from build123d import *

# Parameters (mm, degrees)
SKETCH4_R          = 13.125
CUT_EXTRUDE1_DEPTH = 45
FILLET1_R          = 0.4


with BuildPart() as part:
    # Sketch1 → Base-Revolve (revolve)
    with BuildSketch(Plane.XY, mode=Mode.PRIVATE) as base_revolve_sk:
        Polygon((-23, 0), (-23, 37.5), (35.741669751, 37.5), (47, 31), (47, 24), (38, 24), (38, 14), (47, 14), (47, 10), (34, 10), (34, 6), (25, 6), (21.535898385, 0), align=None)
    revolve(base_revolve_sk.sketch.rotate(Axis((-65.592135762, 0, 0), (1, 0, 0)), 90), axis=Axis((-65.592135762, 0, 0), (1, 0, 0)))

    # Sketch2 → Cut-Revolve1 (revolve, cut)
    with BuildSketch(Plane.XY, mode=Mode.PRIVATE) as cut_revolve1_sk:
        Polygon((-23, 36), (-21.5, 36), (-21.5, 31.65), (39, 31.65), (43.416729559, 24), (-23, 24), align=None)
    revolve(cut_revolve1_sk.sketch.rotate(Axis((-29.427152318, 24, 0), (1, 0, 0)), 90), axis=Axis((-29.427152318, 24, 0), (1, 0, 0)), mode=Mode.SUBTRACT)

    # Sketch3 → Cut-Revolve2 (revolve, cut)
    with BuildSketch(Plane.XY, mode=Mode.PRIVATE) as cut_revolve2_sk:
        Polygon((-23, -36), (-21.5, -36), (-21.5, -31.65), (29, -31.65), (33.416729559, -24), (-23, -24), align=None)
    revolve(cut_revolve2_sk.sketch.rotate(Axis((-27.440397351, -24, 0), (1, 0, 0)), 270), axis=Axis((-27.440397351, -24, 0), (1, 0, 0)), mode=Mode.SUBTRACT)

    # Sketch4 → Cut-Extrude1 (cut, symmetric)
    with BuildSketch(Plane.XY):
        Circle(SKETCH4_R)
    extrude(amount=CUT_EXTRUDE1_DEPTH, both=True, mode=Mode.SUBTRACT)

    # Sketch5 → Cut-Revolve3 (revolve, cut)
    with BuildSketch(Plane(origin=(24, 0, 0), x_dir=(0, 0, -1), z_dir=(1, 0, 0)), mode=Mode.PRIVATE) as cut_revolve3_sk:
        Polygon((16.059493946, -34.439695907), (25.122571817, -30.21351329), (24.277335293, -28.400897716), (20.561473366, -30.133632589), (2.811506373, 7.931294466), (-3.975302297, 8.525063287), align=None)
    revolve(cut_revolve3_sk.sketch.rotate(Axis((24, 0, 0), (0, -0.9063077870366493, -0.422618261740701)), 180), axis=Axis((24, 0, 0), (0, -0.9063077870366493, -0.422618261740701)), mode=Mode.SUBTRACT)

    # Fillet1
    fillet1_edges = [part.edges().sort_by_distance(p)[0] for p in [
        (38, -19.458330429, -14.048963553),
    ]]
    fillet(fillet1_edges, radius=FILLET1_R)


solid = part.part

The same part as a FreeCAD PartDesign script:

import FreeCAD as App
import Part
import Sketcher
Q = App.Units.Quantity


def edges_at(feature, points):
    """Names of the edges that pass closest to the given points."""
    edges = feature.Shape.Edges
    near = lambda p: min(range(len(edges)), key=lambda i: edges[i].distToShape(Part.Vertex(*p))[0])
    return sorted({f"Edge{near(p) + 1}" for p in points})

doc = App.newDocument("Part")
body = doc.addObject("PartDesign::Body", "Body")

sketch1 = doc.addObject("Sketcher::SketchObject", "Sketch")
body.addObject(sketch1)
sketch1.AttachmentSupport = (doc.XY_Plane, [""])
sketch1.MapMode = "FlatFace"
sketch1.addGeometry([
    Part.LineSegment(App.Vector(-23, 37.5, 0), App.Vector(-23, 0, 0)),
    Part.LineSegment(App.Vector(-23, 0, 0), App.Vector(21.5, 0, 0)),
    Part.LineSegment(App.Vector(21.5, 0, 0), App.Vector(25, 6, 0)),
    Part.LineSegment(App.Vector(25, 6, 0), App.Vector(34, 6, 0)),
    Part.LineSegment(App.Vector(34, 6, 0), App.Vector(34, 10, 0)),
    Part.LineSegment(App.Vector(34, 10, 0), App.Vector(47, 10, 0)),
    Part.LineSegment(App.Vector(47, 10, 0), App.Vector(47, 14, 0)),
    Part.LineSegment(App.Vector(47, 14, 0), App.Vector(38, 14, 0)),
    Part.LineSegment(App.Vector(38, 14, 0), App.Vector(38, 24, 0)),
    Part.LineSegment(App.Vector(38, 24, 0), App.Vector(47, 24, 0)),
    Part.LineSegment(App.Vector(47, 24, 0), App.Vector(47, 31, 0)),
    Part.LineSegment(App.Vector(47, 31, 0), App.Vector(35.7, 37.5, 0)),
    Part.LineSegment(App.Vector(35.7, 37.5, 0), App.Vector(-23, 37.5, 0)),
], False)
sketch1.addConstraint([
    Sketcher.Constraint("Coincident", 0, 2, 1, 1),
    Sketcher.Constraint("Coincident", 1, 2, 2, 1),
    Sketcher.Constraint("Coincident", 2, 2, 3, 1),
    Sketcher.Constraint("Coincident", 3, 2, 4, 1),
    Sketcher.Constraint("Coincident", 4, 2, 5, 1),
    Sketcher.Constraint("Coincident", 5, 2, 6, 1),
    Sketcher.Constraint("Coincident", 6, 2, 7, 1),
    Sketcher.Constraint("Coincident", 7, 2, 8, 1),
    Sketcher.Constraint("Coincident", 8, 2, 9, 1),
    Sketcher.Constraint("Coincident", 9, 2, 10, 1),
    Sketcher.Constraint("Coincident", 10, 2, 11, 1),
    Sketcher.Constraint("Coincident", 11, 2, 12, 1),
    Sketcher.Constraint("Coincident", 12, 2, 0, 1),
    Sketcher.Constraint("Vertical", 0),
    Sketcher.Constraint("Horizontal", 1),
    Sketcher.Constraint("Horizontal", 3),
    Sketcher.Constraint("Vertical", 4),
    Sketcher.Constraint("Horizontal", 5),
    Sketcher.Constraint("Vertical", 6),
    Sketcher.Constraint("Horizontal", 7),
    Sketcher.Constraint("Vertical", 8),
    Sketcher.Constraint("Horizontal", 9),
    Sketcher.Constraint("Vertical", 10),
    Sketcher.Constraint("Horizontal", 12),
    Sketcher.Constraint("PointOnObject", 0, 2, -1),
    Sketcher.Constraint("Perpendicular", 2, 11),
    Sketcher.Constraint("Vertical", 6, 2, 9, 2),
    Sketcher.Constraint("Equal", 3, 7),
    Sketcher.Constraint("Equal", 4, 6),
    Sketcher.Constraint("DistanceX", 3, 1, 3, 2, Q("9 mm")),
    Sketcher.Constraint("DistanceX", 5, 1, 5, 2, Q("13 mm")),
    Sketcher.Constraint("DistanceY", 4, 1, 4, 2, Q("4 mm")),
    Sketcher.Constraint("DistanceY", 8, 1, 8, 2, Q("10 mm")),
    Sketcher.Constraint("DistanceY", 10, 1, 10, 2, Q("7 mm")),
    Sketcher.Constraint("Angle", 2, Q("60 deg")),
    Sketcher.Constraint("Distance", 11, Q("13 mm")),
    Sketcher.Constraint("DistanceY", 0, 2, 0, 1, Q("37.5 mm")),
    Sketcher.Constraint("DistanceX", 0, 2, -1, 1, Q("23 mm")),
    Sketcher.Constraint("DistanceX", -1, 1, 2, 2, Q("25 mm")),
])
revolution = doc.addObject("PartDesign::Revolution", "Revolution")
body.addObject(revolution)
revolution.Profile = sketch1
revolution.ReferenceAxis = (sketch1, ["H_Axis"])
revolution.Angle = 360

sketch2 = doc.addObject("Sketcher::SketchObject", "Sketch001")
body.addObject(sketch2)
sketch2.AttachmentSupport = (doc.XY_Plane, [""])
sketch2.MapMode = "FlatFace"
sketch2.addGeometry([
    Part.LineSegment(App.Vector(-21.5, 36, 0), App.Vector(-23, 36, 0)),
    Part.LineSegment(App.Vector(-23, 36, 0), App.Vector(-23, 24, 0)),
    Part.LineSegment(App.Vector(-23, 24, 0), App.Vector(43.4, 24, 0)),
    Part.LineSegment(App.Vector(43.4, 24, 0), App.Vector(39, 31.6, 0)),
    Part.LineSegment(App.Vector(39, 31.6, 0), App.Vector(-21.5, 31.6, 0)),
    Part.LineSegment(App.Vector(-21.5, 31.6, 0), App.Vector(-21.5, 36, 0)),
], False)
sketch2.addGeometry(Part.LineSegment(App.Vector(-23, 24, 0), App.Vector(43.4, 24, 0)), True)
sketch2.addConstraint([
    Sketcher.Constraint("Coincident", 0, 2, 1, 1),
    Sketcher.Constraint("Coincident", 1, 2, 2, 1),
    Sketcher.Constraint("Coincident", 2, 2, 3, 1),
    Sketcher.Constraint("Coincident", 3, 2, 4, 1),
    Sketcher.Constraint("Coincident", 4, 2, 5, 1),
    Sketcher.Constraint("Coincident", 5, 2, 0, 1),
    Sketcher.Constraint("Horizontal", 0),
    Sketcher.Constraint("Vertical", 1),
    Sketcher.Constraint("Horizontal", 2),
    Sketcher.Constraint("Horizontal", 4),
    Sketcher.Constraint("Vertical", 5),
    Sketcher.Constraint("Horizontal", 6),
    Sketcher.Constraint("Coincident", 6, 1, 1, 2),
    Sketcher.Constraint("Equal", 2, 6),
    Sketcher.Constraint("DistanceY", 1, 2, 1, 1, Q("12 mm")),
    Sketcher.Constraint("Angle", 3, Q("120 deg")),
    Sketcher.Constraint("DistanceX", 0, 2, 0, 1, Q("1.5 mm")),
    Sketcher.Constraint("DistanceX", 4, 2, 4, 1, Q("60.5 mm")),
    Sketcher.Constraint("DistanceX", 0, 2, -1, 1, Q("23 mm")),
    Sketcher.Constraint("DistanceY", -1, 1, 0, 2, Q("36 mm")),
    Sketcher.Constraint("DistanceY", 5, 1, 5, 2, Q("4.35 mm")),
])
groove = doc.addObject("PartDesign::Groove", "Groove")
body.addObject(groove)
groove.Profile = sketch2
groove.ReferenceAxis = (sketch2, ["Axis0"])
groove.Angle = 360

sketch3 = doc.addObject("Sketcher::SketchObject", "Sketch002")
body.addObject(sketch3)
sketch3.AttachmentSupport = (doc.XY_Plane, [""])
sketch3.MapMode = "FlatFace"
sketch3.addGeometry([
    Part.LineSegment(App.Vector(-23, -36, 0), App.Vector(-21.5, -36, 0)),
    Part.LineSegment(App.Vector(-21.5, -36, 0), App.Vector(-21.5, -31.6, 0)),
    Part.LineSegment(App.Vector(-21.5, -31.6, 0), App.Vector(29, -31.6, 0)),
    Part.LineSegment(App.Vector(29, -31.6, 0), App.Vector(33.4, -24, 0)),
    Part.LineSegment(App.Vector(33.4, -24, 0), App.Vector(-23, -24, 0)),
    Part.LineSegment(App.Vector(-23, -24, 0), App.Vector(-23, -36, 0)),
], False)
sketch3.addGeometry(Part.LineSegment(App.Vector(-23, -24, 0), App.Vector(33.4, -24, 0)), True)
sketch3.addConstraint([
    Sketcher.Constraint("Coincident", 0, 2, 1, 1),
    Sketcher.Constraint("Coincident", 1, 2, 2, 1),
    Sketcher.Constraint("Coincident", 2, 2, 3, 1),
    Sketcher.Constraint("Coincident", 3, 2, 4, 1),
    Sketcher.Constraint("Coincident", 4, 2, 5, 1),
    Sketcher.Constraint("Coincident", 5, 2, 0, 1),
    Sketcher.Constraint("Horizontal", 0),
    Sketcher.Constraint("Vertical", 1),
    Sketcher.Constraint("Horizontal", 2),
    Sketcher.Constraint("Horizontal", 4),
    Sketcher.Constraint("Vertical", 5),
    Sketcher.Constraint("Horizontal", 6),
    Sketcher.Constraint("Coincident", 6, 1, 4, 2),
    Sketcher.Constraint("Equal", 4, 6),
    Sketcher.Constraint("DistanceY", 5, 2, 5, 1, Q("12 mm")),
    Sketcher.Constraint("Angle", 3, Q("60 deg")),
    Sketcher.Constraint("DistanceX", 0, 1, 0, 2, Q("1.5 mm")),
    Sketcher.Constraint("DistanceX", 2, 1, 2, 2, Q("50.5 mm")),
    Sketcher.Constraint("DistanceY", 0, 2, -1, 1, Q("36 mm")),
    Sketcher.Constraint("DistanceX", -1, 1, 2, 2, Q("29 mm")),
    Sketcher.Constraint("DistanceY", 1, 1, 1, 2, Q("4.35 mm")),
])
groove2 = doc.addObject("PartDesign::Groove", "Groove001")
body.addObject(groove2)
groove2.Profile = sketch3
groove2.ReferenceAxis = (sketch3, ["Axis0"])
groove2.Angle = 360

sketch4 = doc.addObject("Sketcher::SketchObject", "Sketch003")
body.addObject(sketch4)
sketch4.AttachmentSupport = (doc.XY_Plane, [""])
sketch4.MapMode = "FlatFace"
sketch4.addGeometry(Part.Circle(App.Vector(0, 0, 0), App.Vector(0, 0, 1), 13), False)
sketch4.addConstraint([
    Sketcher.Constraint("Coincident", 0, 3, -1, 1),
    Sketcher.Constraint("Diameter", 0, Q("26.25 mm")),
])
pocket1 = doc.addObject("PartDesign::Pocket", "Pocket")
body.addObject(pocket1)
pocket1.Profile = sketch4
pocket1.Length = 90
pocket1.Midplane = True

sketch5 = doc.addObject("Sketcher::SketchObject", "Sketch004")
body.addObject(sketch5)
sketch5.AttachmentSupport = (doc.YZ_Plane, [""])
sketch5.MapMode = "FlatFace"
sketch5.AttachmentOffset = App.Placement(App.Vector(0, 0, 24), App.Rotation())
sketch5.addGeometry([
    Part.LineSegment(App.Vector(-34.4, -16.1, 0), App.Vector(-30.2, -25.1, 0)),
    Part.LineSegment(App.Vector(-30.2, -25.1, 0), App.Vector(-28.4, -24.3, 0)),
    Part.LineSegment(App.Vector(-28.4, -24.3, 0), App.Vector(-30.1, -20.6, 0)),
    Part.LineSegment(App.Vector(-30.1, -20.6, 0), App.Vector(7.9, -2.8, 0)),
    Part.LineSegment(App.Vector(7.9, -2.8, 0), App.Vector(8.5, 4, 0)),
    Part.LineSegment(App.Vector(8.5, 4, 0), App.Vector(-34.4, -16.1, 0)),
], False)
sketch5.addGeometry(Part.LineSegment(App.Vector(8.5, 4, 0), App.Vector(-34.4, -16.1, 0)), True)
sketch5.addConstraint([
    Sketcher.Constraint("Coincident", 0, 2, 1, 1),
    Sketcher.Constraint("Coincident", 1, 2, 2, 1),
    Sketcher.Constraint("Coincident", 2, 2, 3, 1),
    Sketcher.Constraint("Coincident", 3, 2, 4, 1),
    Sketcher.Constraint("Coincident", 4, 2, 5, 1),
    Sketcher.Constraint("Coincident", 5, 2, 0, 1),
    Sketcher.Constraint("Coincident", 6, 1, 4, 2),
    Sketcher.Constraint("Coincident", 6, 2, 5, 2),
    Sketcher.Constraint("Perpendicular", 0, 1),
    Sketcher.Constraint("Perpendicular", 1, 2),
    Sketcher.Constraint("Perpendicular", 2, 3),
    Sketcher.Constraint("Parallel", 3, 5),
    Sketcher.Constraint("Angle", 0, Q("-65 deg")),
    Sketcher.Constraint("Angle", 4, Q("85 deg")),
    Sketcher.Constraint("Distance", 0, Q("10 mm")),
    Sketcher.Constraint("Distance", 1, Q("2 mm")),
    Sketcher.Constraint("Distance", 3, Q("42 mm")),
    Sketcher.Constraint("Distance", 2, Q("4.1 mm")),
    Sketcher.Constraint("DistanceY", 0, 2, -1, 1, Q("25.122572 mm")),
    Sketcher.Constraint("DistanceX", 0, 2, -1, 1, Q("30.213513 mm")),
])
groove3 = doc.addObject("PartDesign::Groove", "Groove002")
body.addObject(groove3)
groove3.Profile = sketch5
groove3.ReferenceAxis = (sketch5, ["Axis0"])
groove3.Angle = 360
doc.recompute()

fillet = doc.addObject("PartDesign::Fillet", "Fillet")
body.addObject(fillet)
fillet.Base = (groove3, edges_at(groove3, [(38, -19.458, -14.049)]))
fillet.Radius = 0.4

doc.recompute()
